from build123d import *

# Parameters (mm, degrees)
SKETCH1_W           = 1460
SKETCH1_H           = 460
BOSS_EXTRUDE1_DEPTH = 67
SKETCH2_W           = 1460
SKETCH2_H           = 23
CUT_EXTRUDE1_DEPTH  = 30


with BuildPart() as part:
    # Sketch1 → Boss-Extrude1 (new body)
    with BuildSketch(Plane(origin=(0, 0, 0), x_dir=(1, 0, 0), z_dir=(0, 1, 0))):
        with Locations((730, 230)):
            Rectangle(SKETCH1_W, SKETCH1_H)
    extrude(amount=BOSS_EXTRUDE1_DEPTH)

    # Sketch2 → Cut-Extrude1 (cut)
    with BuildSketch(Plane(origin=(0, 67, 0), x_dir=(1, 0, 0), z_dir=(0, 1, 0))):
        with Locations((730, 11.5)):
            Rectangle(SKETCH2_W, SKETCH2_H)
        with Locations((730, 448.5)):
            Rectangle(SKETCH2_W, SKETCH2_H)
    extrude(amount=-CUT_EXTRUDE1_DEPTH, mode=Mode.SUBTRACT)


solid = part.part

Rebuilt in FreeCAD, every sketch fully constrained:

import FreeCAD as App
import Part
import Sketcher
from FreeCAD import Vector
Q = App.Units.Quantity

doc = App.newDocument("Part")
params = doc.addObject("Spreadsheet::Sheet", "Params")
for row, (alias, value) in enumerate([
    ("sketch1_width", "1460 mm"),
    ("sketch1_height", "460 mm"),
    ("pad1_length", "67 mm"),
    ("sketch2_width", "1460 mm"),
    ("sketch2_height", "23 mm"),
    ("pocket1_length", "30 mm"),
], start=1):
    params.set(f"A{row}", alias)
    params.set(f"B{row}", "=" + value)
    params.setAlias(f"B{row}", alias)

body = doc.addObject("PartDesign::Body", "Body")

sketch1 = body.newObject("Sketcher::SketchObject", "Sketch")
sketch1.AttachmentSupport = (doc.getObject("XZ_Plane"), [""])
sketch1.MapMode = "FlatFace"
sketch1.addGeometry([
    Part.LineSegment(Vector(0, -460, 0), Vector(0, 0, 0)),
    Part.LineSegment(Vector(0, 0, 0), Vector(1460, 0, 0)),
    Part.LineSegment(Vector(1460, 0, 0), Vector(1460, -460, 0)),
    Part.LineSegment(Vector(1460, -460, 0), Vector(0, -460, 0)),
], False)
sketch1.addConstraint([
    Sketcher.Constraint("Coincident", 0, 2, 1, 1),
    Sketcher.Constraint("Coincident", 1, 2, 2, 1),
    Sketcher.Constraint("Coincident", 2, 2, 3, 1),
    Sketcher.Constraint("Coincident", 3, 2, 0, 1),
    Sketcher.Constraint("Vertical", 0),
    Sketcher.Constraint("Horizontal", 1),
    Sketcher.Constraint("Vertical", 2),
    Sketcher.Constraint("Horizontal", 3),
    Sketcher.Constraint("Coincident", 0, 2, -1, 1),
    Sketcher.Constraint("DistanceX", 1, 1, 1, 2, Q("1460 mm")),
    Sketcher.Constraint("DistanceY", 0, 1, 0, 2, Q("460 mm")),
])
sketch1.setExpression("Constraints[9]", "Params.sketch1_width")
sketch1.setExpression("Constraints[10]", "Params.sketch1_height")
pad1 = body.newObject("PartDesign::Pad", "Pad")
pad1.Profile = sketch1
pad1.setExpression("Length", "Params.pad1_length")
pad1.Reversed = True

sketch2 = body.newObject("Sketcher::SketchObject", "Sketch001")
sketch2.AttachmentSupport = (doc.getObject("XZ_Plane"), [""])
sketch2.MapMode = "FlatFace"
sketch2.AttachmentOffset = App.Placement(Vector(0, 0, -67), App.Rotation())
sketch2.addGeometry([
    Part.LineSegment(Vector(0, -23, 0), Vector(0, 0, 0)),
    Part.LineSegment(Vector(0, 0, 0), Vector(1460, 0, 0)),
    Part.LineSegment(Vector(1460, 0, 0), Vector(1460, -23, 0)),
    Part.LineSegment(Vector(1460, -23, 0), Vector(0, -23, 0)),
    Part.LineSegment(Vector(0, -460, 0), Vector(0, -437, 0)),
    Part.LineSegment(Vector(0, -437, 0), Vector(1460, -437, 0)),
    Part.LineSegment(Vector(1460, -437, 0), Vector(1460, -460, 0)),
    Part.LineSegment(Vector(1460, -460, 0), Vector(0, -460, 0)),
], False)
sketch2.addConstraint([
    Sketcher.Constraint("Coincident", 0, 2, 1, 1),
    Sketcher.Constraint("Coincident", 1, 2, 2, 1),
    Sketcher.Constraint("Coincident", 2, 2, 3, 1),
    Sketcher.Constraint("Coincident", 3, 2, 0, 1),
    Sketcher.Constraint("Coincident", 4, 2, 5, 1),
    Sketcher.Constraint("Coincident", 5, 2, 6, 1),
    Sketcher.Constraint("Coincident", 6, 2, 7, 1),
    Sketcher.Constraint("Coincident", 7, 2, 4, 1),
    Sketcher.Constraint("Vertical", 0),
    Sketcher.Constraint("Horizontal", 1),
    Sketcher.Constraint("Vertical", 2),
    Sketcher.Constraint("Horizontal", 3),
    Sketcher.Constraint("Vertical", 4),
    Sketcher.Constraint("Horizontal", 5),
    Sketcher.Constraint("Vertical", 6),
    Sketcher.Constraint("Horizontal", 7),
    Sketcher.Constraint("Coincident", 0, 2, -1, 1),
    Sketcher.Constraint("PointOnObject", 4, 2, -2),
    Sketcher.Constraint("Vertical", 2, 2, 5, 2),
    Sketcher.Constraint("Equal", 2, 4),
    Sketcher.Constraint("DistanceX", 1, 1, 1, 2, Q("1460 mm")),
    Sketcher.Constraint("DistanceY", 0, 1, 0, 2, Q("23 mm")),
    Sketcher.Constraint("DistanceY", 4, 2, -1, 1, Q("437 mm")),
])
sketch2.setExpression("Constraints[20]", "Params.sketch2_width")
sketch2.setExpression("Constraints[21]", "Params.sketch2_height")
pocket1 = body.newObject("PartDesign::Pocket", "Pocket")
pocket1.Profile = sketch2
pocket1.setExpression("Length", "Params.pocket1_length")
pocket1.Reversed = True

doc.recompute()
